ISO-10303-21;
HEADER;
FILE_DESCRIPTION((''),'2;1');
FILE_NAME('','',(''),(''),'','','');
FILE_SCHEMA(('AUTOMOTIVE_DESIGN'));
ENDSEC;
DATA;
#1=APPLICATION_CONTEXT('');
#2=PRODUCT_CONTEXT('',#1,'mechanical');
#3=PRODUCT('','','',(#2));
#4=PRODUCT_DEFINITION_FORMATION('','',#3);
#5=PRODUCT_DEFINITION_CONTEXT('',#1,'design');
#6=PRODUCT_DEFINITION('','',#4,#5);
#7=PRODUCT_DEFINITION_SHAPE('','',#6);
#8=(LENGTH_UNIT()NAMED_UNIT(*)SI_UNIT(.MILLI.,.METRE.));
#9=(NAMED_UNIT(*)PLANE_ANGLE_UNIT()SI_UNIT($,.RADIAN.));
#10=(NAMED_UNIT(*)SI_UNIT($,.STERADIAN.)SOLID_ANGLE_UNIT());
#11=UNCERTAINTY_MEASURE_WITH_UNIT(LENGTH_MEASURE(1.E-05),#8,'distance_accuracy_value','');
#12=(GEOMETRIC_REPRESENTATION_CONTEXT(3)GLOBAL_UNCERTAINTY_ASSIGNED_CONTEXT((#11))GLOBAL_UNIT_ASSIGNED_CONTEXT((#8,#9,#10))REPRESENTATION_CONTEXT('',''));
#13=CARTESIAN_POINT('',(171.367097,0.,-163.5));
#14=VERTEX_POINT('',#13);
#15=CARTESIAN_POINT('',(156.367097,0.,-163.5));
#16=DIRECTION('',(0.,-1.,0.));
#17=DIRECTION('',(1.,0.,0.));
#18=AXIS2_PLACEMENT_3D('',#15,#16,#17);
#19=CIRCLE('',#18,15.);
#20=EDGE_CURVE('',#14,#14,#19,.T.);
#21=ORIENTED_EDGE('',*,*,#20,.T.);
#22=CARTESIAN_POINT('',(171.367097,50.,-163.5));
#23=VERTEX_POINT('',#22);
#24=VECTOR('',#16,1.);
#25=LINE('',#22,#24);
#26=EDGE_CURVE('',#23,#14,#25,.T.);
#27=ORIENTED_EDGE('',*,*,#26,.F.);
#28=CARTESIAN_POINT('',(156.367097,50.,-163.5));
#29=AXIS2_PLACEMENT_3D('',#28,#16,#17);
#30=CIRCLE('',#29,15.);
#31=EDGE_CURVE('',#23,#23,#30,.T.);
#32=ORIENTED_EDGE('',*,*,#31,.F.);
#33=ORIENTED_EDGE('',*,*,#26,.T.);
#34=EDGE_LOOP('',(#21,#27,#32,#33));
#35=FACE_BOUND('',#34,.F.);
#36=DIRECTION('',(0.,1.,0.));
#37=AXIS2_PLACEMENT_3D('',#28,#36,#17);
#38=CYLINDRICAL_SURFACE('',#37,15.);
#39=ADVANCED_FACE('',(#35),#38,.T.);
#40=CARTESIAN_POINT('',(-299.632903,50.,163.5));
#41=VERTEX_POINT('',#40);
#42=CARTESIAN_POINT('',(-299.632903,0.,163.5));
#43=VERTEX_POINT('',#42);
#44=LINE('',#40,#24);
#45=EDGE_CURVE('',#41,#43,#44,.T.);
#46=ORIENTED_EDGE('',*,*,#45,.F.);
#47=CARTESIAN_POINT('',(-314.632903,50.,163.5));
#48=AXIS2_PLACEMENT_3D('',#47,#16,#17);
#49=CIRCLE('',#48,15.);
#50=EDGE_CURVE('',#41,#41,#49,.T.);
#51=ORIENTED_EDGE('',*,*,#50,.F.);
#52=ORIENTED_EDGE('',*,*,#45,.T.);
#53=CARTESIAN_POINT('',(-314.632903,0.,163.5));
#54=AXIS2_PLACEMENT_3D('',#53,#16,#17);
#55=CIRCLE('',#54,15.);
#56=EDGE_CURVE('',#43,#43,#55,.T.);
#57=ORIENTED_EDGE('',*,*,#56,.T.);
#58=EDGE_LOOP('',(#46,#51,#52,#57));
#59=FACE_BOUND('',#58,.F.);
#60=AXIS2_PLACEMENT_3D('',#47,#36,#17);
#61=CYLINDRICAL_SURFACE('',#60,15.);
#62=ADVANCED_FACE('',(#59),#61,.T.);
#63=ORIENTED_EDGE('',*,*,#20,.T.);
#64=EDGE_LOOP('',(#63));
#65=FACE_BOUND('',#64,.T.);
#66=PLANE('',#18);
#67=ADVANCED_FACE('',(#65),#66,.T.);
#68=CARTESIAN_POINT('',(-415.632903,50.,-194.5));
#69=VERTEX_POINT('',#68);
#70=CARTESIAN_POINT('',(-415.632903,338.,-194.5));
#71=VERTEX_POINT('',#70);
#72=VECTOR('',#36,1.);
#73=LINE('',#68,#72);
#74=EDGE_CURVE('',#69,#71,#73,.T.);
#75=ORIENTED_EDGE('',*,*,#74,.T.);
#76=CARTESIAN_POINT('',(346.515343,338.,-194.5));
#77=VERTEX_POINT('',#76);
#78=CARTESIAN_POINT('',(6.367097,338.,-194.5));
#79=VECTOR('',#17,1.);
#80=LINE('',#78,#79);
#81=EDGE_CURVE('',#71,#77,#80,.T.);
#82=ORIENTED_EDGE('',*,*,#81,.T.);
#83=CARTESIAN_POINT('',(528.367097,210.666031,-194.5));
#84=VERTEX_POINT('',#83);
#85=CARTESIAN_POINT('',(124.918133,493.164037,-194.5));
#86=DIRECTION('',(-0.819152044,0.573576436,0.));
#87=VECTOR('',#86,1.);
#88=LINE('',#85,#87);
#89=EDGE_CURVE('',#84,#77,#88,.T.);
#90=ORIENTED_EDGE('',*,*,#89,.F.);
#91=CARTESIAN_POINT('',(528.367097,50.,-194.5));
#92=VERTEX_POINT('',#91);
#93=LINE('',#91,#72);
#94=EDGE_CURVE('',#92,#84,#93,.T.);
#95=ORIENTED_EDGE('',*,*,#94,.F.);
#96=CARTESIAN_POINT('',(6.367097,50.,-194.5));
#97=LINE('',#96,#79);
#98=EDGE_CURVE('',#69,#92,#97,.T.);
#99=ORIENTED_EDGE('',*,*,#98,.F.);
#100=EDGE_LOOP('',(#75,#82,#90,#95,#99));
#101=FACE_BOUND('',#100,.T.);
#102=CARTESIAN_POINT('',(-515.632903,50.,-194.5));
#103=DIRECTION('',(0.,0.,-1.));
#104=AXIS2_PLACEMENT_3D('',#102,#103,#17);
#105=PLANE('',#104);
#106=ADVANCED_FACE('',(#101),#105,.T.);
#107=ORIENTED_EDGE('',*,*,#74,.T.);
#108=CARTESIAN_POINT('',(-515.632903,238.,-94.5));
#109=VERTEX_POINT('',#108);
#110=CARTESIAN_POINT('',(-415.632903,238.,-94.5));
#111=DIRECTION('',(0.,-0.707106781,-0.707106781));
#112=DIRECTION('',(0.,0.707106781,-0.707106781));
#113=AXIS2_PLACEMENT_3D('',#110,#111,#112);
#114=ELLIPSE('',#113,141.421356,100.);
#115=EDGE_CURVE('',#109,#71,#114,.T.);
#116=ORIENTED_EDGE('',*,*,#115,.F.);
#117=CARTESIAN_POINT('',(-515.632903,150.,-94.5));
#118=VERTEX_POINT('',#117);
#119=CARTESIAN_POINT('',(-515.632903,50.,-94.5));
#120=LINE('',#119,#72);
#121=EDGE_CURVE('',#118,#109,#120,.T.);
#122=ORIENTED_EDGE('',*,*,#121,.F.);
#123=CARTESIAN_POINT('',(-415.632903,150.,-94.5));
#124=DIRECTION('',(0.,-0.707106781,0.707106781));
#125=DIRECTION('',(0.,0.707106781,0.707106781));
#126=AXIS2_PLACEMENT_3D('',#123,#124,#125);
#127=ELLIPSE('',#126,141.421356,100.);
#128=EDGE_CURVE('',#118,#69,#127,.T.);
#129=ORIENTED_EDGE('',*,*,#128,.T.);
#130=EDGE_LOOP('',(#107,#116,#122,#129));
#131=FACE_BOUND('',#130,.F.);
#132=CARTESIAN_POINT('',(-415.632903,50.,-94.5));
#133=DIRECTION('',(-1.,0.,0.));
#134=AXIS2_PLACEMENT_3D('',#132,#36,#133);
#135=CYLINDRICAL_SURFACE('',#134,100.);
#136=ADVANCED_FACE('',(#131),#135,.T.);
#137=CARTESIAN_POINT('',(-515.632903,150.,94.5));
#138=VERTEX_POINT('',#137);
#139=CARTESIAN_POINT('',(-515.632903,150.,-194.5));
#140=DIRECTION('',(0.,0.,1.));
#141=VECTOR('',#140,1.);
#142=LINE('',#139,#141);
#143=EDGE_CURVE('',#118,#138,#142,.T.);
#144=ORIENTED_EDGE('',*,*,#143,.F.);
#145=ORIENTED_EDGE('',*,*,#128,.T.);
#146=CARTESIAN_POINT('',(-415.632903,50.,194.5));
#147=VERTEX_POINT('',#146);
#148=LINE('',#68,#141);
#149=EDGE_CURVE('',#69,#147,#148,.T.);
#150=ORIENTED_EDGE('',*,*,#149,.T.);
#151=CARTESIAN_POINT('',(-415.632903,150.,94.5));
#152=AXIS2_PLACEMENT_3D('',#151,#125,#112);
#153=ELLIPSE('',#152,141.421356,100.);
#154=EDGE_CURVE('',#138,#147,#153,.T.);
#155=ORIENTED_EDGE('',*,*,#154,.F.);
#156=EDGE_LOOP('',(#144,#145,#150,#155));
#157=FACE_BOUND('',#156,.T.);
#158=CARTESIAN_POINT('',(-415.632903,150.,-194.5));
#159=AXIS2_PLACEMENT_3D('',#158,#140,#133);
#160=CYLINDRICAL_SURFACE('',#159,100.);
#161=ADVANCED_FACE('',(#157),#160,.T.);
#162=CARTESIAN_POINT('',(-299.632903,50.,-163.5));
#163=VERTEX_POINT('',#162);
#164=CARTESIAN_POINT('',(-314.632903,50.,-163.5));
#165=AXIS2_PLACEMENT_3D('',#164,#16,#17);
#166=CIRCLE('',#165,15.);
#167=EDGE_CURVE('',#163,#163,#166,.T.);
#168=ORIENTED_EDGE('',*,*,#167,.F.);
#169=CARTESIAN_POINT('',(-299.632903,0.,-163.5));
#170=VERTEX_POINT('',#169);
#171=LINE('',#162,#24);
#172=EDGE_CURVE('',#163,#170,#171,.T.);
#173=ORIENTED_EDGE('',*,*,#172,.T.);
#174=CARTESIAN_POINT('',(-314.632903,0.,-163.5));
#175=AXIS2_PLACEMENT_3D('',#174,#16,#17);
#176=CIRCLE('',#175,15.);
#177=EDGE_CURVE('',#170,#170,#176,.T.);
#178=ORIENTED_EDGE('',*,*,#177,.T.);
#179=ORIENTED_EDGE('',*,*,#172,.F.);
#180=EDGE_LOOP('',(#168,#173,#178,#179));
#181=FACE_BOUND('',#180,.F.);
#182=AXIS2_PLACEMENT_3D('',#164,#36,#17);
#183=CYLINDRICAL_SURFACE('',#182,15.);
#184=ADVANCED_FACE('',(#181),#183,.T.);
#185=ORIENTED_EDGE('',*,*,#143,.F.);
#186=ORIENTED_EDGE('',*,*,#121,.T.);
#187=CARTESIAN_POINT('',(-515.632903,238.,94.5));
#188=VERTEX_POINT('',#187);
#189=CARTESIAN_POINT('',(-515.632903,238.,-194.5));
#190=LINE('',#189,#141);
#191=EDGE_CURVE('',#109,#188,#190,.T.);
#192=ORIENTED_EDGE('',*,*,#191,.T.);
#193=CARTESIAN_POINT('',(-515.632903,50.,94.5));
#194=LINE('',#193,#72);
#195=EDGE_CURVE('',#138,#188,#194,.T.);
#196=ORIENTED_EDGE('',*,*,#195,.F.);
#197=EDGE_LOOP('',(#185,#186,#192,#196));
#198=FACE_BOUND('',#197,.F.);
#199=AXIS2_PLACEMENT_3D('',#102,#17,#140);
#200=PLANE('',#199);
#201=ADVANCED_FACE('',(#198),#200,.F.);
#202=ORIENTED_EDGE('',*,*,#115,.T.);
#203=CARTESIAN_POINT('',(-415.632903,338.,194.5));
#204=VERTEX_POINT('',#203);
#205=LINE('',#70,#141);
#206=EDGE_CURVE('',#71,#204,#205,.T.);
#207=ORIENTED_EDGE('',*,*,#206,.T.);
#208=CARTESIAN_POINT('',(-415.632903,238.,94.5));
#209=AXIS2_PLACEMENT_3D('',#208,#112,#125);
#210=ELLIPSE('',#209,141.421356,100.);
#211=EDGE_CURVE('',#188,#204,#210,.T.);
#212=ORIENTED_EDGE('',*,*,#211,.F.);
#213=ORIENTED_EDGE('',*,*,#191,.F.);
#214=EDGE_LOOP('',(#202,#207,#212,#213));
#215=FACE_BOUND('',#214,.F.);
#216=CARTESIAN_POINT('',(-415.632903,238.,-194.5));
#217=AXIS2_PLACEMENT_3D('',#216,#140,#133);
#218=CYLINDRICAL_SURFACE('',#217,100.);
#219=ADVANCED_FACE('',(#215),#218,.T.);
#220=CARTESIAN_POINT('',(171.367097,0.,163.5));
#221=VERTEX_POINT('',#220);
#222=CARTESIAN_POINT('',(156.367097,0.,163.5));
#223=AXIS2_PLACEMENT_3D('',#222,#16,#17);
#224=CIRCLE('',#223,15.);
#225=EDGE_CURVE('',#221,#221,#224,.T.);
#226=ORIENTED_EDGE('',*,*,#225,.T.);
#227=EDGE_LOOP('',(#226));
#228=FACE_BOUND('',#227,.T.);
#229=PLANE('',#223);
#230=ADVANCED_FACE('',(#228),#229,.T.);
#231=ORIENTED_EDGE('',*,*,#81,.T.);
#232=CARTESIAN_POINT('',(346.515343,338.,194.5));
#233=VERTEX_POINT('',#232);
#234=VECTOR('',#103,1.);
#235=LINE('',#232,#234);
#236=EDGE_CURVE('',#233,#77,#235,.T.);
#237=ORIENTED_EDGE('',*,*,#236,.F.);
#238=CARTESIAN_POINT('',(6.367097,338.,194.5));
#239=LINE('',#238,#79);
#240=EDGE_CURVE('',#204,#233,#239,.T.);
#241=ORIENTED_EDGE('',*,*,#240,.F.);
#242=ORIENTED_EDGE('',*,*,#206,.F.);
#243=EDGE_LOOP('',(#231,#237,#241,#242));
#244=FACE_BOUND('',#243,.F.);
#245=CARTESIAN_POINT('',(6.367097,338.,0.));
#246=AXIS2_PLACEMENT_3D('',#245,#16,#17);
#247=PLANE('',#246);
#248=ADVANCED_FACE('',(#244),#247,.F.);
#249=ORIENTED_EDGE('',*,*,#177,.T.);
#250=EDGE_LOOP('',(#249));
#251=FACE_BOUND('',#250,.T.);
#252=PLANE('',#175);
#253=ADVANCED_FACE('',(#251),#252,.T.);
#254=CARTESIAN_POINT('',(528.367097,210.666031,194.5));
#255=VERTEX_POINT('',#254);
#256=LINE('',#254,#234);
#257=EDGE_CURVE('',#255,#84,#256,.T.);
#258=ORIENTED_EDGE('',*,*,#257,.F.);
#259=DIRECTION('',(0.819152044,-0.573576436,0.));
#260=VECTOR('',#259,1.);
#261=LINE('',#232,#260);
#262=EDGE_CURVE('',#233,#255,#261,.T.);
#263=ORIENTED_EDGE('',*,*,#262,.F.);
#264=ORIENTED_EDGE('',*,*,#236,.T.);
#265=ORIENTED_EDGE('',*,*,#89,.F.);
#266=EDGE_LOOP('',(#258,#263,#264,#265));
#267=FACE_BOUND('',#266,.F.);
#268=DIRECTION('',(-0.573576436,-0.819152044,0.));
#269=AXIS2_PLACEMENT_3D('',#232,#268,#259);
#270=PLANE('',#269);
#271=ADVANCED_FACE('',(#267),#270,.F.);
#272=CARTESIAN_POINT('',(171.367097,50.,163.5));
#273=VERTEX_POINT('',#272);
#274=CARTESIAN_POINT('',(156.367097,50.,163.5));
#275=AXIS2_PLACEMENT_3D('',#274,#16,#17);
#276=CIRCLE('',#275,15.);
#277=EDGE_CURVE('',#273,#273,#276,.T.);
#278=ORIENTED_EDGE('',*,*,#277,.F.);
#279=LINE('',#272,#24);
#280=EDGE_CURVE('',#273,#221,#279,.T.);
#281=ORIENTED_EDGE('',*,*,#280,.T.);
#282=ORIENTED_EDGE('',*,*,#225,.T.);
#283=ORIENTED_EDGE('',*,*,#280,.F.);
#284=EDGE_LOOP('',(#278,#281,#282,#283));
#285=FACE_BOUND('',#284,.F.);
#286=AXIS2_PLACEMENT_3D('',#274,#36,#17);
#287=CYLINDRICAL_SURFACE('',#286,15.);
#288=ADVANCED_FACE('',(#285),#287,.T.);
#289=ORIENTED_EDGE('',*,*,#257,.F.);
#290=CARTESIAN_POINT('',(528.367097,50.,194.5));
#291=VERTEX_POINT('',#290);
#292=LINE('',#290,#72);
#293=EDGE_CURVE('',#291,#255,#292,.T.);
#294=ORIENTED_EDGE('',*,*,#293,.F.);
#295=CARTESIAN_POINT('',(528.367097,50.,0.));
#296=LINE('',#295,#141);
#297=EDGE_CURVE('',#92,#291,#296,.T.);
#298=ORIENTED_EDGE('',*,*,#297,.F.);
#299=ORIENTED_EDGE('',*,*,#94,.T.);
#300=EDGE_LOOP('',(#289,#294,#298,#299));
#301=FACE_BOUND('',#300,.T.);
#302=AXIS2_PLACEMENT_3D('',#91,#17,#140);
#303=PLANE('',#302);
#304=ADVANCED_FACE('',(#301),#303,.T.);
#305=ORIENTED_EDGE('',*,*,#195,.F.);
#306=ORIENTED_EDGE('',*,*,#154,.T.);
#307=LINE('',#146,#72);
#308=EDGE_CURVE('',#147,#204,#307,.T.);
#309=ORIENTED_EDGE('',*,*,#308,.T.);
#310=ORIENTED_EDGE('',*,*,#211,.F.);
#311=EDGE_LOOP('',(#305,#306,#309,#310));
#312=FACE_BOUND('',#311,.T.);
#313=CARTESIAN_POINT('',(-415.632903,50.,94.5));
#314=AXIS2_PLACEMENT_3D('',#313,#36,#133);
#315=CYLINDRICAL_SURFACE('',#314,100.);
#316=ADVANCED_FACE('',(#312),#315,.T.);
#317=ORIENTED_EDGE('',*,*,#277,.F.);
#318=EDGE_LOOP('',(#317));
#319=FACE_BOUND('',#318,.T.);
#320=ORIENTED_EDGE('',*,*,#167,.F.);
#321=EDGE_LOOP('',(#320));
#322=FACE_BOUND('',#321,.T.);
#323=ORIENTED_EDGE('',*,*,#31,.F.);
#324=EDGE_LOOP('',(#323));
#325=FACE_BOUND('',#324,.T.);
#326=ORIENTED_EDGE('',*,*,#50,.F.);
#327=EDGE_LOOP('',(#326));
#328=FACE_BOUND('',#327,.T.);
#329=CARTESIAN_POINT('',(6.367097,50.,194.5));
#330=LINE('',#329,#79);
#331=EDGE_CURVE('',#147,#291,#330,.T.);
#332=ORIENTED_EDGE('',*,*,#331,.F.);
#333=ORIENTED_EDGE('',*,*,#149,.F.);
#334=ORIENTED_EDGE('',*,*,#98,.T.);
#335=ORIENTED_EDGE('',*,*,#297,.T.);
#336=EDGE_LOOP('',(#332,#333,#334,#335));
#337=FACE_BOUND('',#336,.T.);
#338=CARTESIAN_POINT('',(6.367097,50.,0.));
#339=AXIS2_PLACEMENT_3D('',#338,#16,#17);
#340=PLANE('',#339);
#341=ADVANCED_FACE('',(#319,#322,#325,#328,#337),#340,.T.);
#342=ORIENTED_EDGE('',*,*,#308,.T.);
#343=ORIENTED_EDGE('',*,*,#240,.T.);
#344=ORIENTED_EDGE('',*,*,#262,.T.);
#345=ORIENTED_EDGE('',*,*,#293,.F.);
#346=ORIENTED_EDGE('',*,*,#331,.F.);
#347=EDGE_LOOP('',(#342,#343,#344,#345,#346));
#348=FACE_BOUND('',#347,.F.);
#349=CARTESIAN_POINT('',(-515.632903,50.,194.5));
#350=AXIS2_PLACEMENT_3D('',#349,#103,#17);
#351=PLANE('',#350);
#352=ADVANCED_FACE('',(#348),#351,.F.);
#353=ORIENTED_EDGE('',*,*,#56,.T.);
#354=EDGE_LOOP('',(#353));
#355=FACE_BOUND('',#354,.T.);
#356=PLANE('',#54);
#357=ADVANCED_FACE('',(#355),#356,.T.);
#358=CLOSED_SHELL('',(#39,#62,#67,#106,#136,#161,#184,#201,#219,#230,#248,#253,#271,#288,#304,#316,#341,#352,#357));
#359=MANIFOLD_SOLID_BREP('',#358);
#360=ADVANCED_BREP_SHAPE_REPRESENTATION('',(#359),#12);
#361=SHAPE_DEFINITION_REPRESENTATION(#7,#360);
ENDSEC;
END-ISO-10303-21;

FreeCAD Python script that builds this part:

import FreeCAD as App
import Part
import Sketcher
Q = App.Units.Quantity


def edges_at(feature, points):
    """Names of the edges that pass closest to the given points."""
    edges = feature.Shape.Edges
    near = lambda p: min(range(len(edges)), key=lambda i: edges[i].distToShape(Part.Vertex(*p))[0])
    return sorted({f"Edge{near(p) + 1}" for p in points})

doc = App.newDocument("Part")
params = doc.addObject("Spreadsheet::Sheet", "Params")
for row, (alias, value) in enumerate([
    ("sketch1_width", "1044 mm"),
    ("sketch1_height", "389 mm"),
    ("pad1_length", "288 mm"),
    ("fillet_radius", "100 mm"),
    ("sketch2_length", "222 mm"),
    ("sketch3_diameter", "30 mm"),
    ("pad2_length", "50 mm"),
], start=1):
    params.set(f"A{row}", alias)
    params.set(f"B{row}", "=" + value)
    params.setAlias(f"B{row}", alias)

body = doc.addObject("PartDesign::Body", "Body")

# Sketch on XZ plane
sketch1 = body.newObject("Sketcher::SketchObject", "Sketch")
sketch1.AttachmentSupport = (doc.getObject("XZ_Plane"), [""])
sketch1.MapMode = "FlatFace"
sketch1.addGeometry([
    Part.LineSegment(App.Vector(-516, 194, 0), App.Vector(-516, -194, 0)),
    Part.LineSegment(App.Vector(-516, -194, 0), App.Vector(528, -194, 0)),
    Part.LineSegment(App.Vector(528, -194, 0), App.Vector(528, 194, 0)),
    Part.LineSegment(App.Vector(528, 194, 0), App.Vector(-516, 194, 0)),
], False)
sketch1.addConstraint([
    Sketcher.Constraint("Coincident", 0, 2, 1, 1),
    Sketcher.Constraint("Coincident", 1, 2, 2, 1),
    Sketcher.Constraint("Coincident", 2, 2, 3, 1),
    Sketcher.Constraint("Coincident", 3, 2, 0, 1),
    Sketcher.Constraint("Vertical", 0),
    Sketcher.Constraint("Horizontal", 1),
    Sketcher.Constraint("Vertical", 2),
    Sketcher.Constraint("Horizontal", 3),
    Sketcher.Constraint("DistanceX", 1, 1, 1, 2, Q("1044 mm")),
    Sketcher.Constraint("DistanceY", 0, 2, 0, 1, Q("389 mm")),
    Sketcher.Constraint("DistanceY", 0, 2, -1, 1, Q("194.5 mm")),
    Sketcher.Constraint("DistanceX", 0, 2, -1, 1, Q("515.632903 mm")),
])
sketch1.setExpression("Constraints[8]", "Params.sketch1_width")
sketch1.setExpression("Constraints[9]", "Params.sketch1_height")
pad1 = body.newObject("PartDesign::Pad", "Pad")
pad1.Profile = sketch1
pad1.setExpression("Length", "Params.pad1_length")
pad1.Reversed = True
doc.recompute()

fillet = body.newObject("PartDesign::Fillet", "Fillet")
fillet.Base = (pad1, edges_at(pad1, [
    (-515.633, 144, 194.5),
    (-515.633, 144, -194.5),
    (-515.633, 0, 0),
    (-515.633, 288, 0),
]))
fillet.setExpression("Radius", "Params.fillet_radius")

# Sketch on XY plane
sketch2 = body.newObject("Sketcher::SketchObject", "Sketch001")
sketch2.AttachmentSupport = (doc.getObject("XY_Plane"), [""])
sketch2.MapMode = "FlatFace"
sketch2.AttachmentOffset = App.Placement(App.Vector(0, 0, 194.5), App.Rotation())
sketch2.addGeometry([
    Part.LineSegment(App.Vector(528, 288, 0), App.Vector(347, 288, 0)),
    Part.LineSegment(App.Vector(347, 288, 0), App.Vector(528, 161, 0)),
    Part.LineSegment(App.Vector(528, 161, 0), App.Vector(528, 288, 0)),
], False)
sketch2.addConstraint([
    Sketcher.Constraint("Coincident", 0, 2, 1, 1),
    Sketcher.Constraint("Coincident", 1, 2, 2, 1),
    Sketcher.Constraint("Coincident", 2, 2, 0, 1),
    Sketcher.Constraint("Horizontal", 0),
    Sketcher.Constraint("Vertical", 2),
    Sketcher.Constraint("Angle", 1, Q("-35 deg")),
    Sketcher.Constraint("Distance", 1, Q("222 mm")),
    Sketcher.Constraint("DistanceY", -1, 1, 0, 2, Q("288 mm")),
    Sketcher.Constraint("DistanceX", -1, 1, 0, 2, Q("346.515343 mm")),
])
sketch2.setExpression("Constraints[6]", "Params.sketch2_length")
pocket1 = body.newObject("PartDesign::Pocket", "Pocket")
pocket1.Profile = sketch2
pocket1.Type = "ThroughAll"

# Sketch on XZ plane
sketch3 = body.newObject("Sketcher::SketchObject", "Sketch002")
sketch3.AttachmentSupport = (doc.getObject("XZ_Plane"), [""])
sketch3.MapMode = "FlatFace"
sketch3.addGeometry([
    Part.Circle(App.Vector(-315, 164, 0), App.Vector(0, 0, 1), 15),
    Part.Circle(App.Vector(156, 164, 0), App.Vector(0, 0, 1), 15),
    Part.Circle(App.Vector(156, -164, 0), App.Vector(0, 0, 1), 15),
    Part.Circle(App.Vector(-315, -164, 0), App.Vector(0, 0, 1), 15),
], False)
sketch3.addConstraint([
    Sketcher.Constraint("Equal", 0, 1),
    Sketcher.Constraint("Equal", 1, 2),
    Sketcher.Constraint("Equal", 2, 3),
    Sketcher.Constraint("Symmetric", 1, 3, 2, 3, -1),
    Sketcher.Constraint("Symmetric", 0, 3, 3, 3, -1),
    Sketcher.Constraint("Horizontal", 0, 3, 1, 3),
    Sketcher.Constraint("Diameter", 0, Q("30 mm")),
    Sketcher.Constraint("DistanceX", 0, 3, 1, 3, Q("471 mm")),
    Sketcher.Constraint("DistanceY", 2, 3, 1, 3, Q("327 mm")),
    Sketcher.Constraint("DistanceX", 0, 3, -1, 1, Q("314.632903 mm")),
])
sketch3.setExpression("Constraints[6]", "Params.sketch3_diameter")
pad2 = body.newObject("PartDesign::Pad", "Pad001")
pad2.Profile = sketch3
pad2.setExpression("Length", "Params.pad2_length")
body2 = doc.addObject("PartDesign::Body", "Body001")
doc.recompute()

body.Placement = App.Placement(App.Vector(0, 50, 0), App.Rotation(App.Vector(0, 0, 1), 0))
boolean = body2.newObject("PartDesign::Boolean", "Boolean")
boolean.Type = "Fuse"
boolean.addObjects([body])

doc.recompute()
